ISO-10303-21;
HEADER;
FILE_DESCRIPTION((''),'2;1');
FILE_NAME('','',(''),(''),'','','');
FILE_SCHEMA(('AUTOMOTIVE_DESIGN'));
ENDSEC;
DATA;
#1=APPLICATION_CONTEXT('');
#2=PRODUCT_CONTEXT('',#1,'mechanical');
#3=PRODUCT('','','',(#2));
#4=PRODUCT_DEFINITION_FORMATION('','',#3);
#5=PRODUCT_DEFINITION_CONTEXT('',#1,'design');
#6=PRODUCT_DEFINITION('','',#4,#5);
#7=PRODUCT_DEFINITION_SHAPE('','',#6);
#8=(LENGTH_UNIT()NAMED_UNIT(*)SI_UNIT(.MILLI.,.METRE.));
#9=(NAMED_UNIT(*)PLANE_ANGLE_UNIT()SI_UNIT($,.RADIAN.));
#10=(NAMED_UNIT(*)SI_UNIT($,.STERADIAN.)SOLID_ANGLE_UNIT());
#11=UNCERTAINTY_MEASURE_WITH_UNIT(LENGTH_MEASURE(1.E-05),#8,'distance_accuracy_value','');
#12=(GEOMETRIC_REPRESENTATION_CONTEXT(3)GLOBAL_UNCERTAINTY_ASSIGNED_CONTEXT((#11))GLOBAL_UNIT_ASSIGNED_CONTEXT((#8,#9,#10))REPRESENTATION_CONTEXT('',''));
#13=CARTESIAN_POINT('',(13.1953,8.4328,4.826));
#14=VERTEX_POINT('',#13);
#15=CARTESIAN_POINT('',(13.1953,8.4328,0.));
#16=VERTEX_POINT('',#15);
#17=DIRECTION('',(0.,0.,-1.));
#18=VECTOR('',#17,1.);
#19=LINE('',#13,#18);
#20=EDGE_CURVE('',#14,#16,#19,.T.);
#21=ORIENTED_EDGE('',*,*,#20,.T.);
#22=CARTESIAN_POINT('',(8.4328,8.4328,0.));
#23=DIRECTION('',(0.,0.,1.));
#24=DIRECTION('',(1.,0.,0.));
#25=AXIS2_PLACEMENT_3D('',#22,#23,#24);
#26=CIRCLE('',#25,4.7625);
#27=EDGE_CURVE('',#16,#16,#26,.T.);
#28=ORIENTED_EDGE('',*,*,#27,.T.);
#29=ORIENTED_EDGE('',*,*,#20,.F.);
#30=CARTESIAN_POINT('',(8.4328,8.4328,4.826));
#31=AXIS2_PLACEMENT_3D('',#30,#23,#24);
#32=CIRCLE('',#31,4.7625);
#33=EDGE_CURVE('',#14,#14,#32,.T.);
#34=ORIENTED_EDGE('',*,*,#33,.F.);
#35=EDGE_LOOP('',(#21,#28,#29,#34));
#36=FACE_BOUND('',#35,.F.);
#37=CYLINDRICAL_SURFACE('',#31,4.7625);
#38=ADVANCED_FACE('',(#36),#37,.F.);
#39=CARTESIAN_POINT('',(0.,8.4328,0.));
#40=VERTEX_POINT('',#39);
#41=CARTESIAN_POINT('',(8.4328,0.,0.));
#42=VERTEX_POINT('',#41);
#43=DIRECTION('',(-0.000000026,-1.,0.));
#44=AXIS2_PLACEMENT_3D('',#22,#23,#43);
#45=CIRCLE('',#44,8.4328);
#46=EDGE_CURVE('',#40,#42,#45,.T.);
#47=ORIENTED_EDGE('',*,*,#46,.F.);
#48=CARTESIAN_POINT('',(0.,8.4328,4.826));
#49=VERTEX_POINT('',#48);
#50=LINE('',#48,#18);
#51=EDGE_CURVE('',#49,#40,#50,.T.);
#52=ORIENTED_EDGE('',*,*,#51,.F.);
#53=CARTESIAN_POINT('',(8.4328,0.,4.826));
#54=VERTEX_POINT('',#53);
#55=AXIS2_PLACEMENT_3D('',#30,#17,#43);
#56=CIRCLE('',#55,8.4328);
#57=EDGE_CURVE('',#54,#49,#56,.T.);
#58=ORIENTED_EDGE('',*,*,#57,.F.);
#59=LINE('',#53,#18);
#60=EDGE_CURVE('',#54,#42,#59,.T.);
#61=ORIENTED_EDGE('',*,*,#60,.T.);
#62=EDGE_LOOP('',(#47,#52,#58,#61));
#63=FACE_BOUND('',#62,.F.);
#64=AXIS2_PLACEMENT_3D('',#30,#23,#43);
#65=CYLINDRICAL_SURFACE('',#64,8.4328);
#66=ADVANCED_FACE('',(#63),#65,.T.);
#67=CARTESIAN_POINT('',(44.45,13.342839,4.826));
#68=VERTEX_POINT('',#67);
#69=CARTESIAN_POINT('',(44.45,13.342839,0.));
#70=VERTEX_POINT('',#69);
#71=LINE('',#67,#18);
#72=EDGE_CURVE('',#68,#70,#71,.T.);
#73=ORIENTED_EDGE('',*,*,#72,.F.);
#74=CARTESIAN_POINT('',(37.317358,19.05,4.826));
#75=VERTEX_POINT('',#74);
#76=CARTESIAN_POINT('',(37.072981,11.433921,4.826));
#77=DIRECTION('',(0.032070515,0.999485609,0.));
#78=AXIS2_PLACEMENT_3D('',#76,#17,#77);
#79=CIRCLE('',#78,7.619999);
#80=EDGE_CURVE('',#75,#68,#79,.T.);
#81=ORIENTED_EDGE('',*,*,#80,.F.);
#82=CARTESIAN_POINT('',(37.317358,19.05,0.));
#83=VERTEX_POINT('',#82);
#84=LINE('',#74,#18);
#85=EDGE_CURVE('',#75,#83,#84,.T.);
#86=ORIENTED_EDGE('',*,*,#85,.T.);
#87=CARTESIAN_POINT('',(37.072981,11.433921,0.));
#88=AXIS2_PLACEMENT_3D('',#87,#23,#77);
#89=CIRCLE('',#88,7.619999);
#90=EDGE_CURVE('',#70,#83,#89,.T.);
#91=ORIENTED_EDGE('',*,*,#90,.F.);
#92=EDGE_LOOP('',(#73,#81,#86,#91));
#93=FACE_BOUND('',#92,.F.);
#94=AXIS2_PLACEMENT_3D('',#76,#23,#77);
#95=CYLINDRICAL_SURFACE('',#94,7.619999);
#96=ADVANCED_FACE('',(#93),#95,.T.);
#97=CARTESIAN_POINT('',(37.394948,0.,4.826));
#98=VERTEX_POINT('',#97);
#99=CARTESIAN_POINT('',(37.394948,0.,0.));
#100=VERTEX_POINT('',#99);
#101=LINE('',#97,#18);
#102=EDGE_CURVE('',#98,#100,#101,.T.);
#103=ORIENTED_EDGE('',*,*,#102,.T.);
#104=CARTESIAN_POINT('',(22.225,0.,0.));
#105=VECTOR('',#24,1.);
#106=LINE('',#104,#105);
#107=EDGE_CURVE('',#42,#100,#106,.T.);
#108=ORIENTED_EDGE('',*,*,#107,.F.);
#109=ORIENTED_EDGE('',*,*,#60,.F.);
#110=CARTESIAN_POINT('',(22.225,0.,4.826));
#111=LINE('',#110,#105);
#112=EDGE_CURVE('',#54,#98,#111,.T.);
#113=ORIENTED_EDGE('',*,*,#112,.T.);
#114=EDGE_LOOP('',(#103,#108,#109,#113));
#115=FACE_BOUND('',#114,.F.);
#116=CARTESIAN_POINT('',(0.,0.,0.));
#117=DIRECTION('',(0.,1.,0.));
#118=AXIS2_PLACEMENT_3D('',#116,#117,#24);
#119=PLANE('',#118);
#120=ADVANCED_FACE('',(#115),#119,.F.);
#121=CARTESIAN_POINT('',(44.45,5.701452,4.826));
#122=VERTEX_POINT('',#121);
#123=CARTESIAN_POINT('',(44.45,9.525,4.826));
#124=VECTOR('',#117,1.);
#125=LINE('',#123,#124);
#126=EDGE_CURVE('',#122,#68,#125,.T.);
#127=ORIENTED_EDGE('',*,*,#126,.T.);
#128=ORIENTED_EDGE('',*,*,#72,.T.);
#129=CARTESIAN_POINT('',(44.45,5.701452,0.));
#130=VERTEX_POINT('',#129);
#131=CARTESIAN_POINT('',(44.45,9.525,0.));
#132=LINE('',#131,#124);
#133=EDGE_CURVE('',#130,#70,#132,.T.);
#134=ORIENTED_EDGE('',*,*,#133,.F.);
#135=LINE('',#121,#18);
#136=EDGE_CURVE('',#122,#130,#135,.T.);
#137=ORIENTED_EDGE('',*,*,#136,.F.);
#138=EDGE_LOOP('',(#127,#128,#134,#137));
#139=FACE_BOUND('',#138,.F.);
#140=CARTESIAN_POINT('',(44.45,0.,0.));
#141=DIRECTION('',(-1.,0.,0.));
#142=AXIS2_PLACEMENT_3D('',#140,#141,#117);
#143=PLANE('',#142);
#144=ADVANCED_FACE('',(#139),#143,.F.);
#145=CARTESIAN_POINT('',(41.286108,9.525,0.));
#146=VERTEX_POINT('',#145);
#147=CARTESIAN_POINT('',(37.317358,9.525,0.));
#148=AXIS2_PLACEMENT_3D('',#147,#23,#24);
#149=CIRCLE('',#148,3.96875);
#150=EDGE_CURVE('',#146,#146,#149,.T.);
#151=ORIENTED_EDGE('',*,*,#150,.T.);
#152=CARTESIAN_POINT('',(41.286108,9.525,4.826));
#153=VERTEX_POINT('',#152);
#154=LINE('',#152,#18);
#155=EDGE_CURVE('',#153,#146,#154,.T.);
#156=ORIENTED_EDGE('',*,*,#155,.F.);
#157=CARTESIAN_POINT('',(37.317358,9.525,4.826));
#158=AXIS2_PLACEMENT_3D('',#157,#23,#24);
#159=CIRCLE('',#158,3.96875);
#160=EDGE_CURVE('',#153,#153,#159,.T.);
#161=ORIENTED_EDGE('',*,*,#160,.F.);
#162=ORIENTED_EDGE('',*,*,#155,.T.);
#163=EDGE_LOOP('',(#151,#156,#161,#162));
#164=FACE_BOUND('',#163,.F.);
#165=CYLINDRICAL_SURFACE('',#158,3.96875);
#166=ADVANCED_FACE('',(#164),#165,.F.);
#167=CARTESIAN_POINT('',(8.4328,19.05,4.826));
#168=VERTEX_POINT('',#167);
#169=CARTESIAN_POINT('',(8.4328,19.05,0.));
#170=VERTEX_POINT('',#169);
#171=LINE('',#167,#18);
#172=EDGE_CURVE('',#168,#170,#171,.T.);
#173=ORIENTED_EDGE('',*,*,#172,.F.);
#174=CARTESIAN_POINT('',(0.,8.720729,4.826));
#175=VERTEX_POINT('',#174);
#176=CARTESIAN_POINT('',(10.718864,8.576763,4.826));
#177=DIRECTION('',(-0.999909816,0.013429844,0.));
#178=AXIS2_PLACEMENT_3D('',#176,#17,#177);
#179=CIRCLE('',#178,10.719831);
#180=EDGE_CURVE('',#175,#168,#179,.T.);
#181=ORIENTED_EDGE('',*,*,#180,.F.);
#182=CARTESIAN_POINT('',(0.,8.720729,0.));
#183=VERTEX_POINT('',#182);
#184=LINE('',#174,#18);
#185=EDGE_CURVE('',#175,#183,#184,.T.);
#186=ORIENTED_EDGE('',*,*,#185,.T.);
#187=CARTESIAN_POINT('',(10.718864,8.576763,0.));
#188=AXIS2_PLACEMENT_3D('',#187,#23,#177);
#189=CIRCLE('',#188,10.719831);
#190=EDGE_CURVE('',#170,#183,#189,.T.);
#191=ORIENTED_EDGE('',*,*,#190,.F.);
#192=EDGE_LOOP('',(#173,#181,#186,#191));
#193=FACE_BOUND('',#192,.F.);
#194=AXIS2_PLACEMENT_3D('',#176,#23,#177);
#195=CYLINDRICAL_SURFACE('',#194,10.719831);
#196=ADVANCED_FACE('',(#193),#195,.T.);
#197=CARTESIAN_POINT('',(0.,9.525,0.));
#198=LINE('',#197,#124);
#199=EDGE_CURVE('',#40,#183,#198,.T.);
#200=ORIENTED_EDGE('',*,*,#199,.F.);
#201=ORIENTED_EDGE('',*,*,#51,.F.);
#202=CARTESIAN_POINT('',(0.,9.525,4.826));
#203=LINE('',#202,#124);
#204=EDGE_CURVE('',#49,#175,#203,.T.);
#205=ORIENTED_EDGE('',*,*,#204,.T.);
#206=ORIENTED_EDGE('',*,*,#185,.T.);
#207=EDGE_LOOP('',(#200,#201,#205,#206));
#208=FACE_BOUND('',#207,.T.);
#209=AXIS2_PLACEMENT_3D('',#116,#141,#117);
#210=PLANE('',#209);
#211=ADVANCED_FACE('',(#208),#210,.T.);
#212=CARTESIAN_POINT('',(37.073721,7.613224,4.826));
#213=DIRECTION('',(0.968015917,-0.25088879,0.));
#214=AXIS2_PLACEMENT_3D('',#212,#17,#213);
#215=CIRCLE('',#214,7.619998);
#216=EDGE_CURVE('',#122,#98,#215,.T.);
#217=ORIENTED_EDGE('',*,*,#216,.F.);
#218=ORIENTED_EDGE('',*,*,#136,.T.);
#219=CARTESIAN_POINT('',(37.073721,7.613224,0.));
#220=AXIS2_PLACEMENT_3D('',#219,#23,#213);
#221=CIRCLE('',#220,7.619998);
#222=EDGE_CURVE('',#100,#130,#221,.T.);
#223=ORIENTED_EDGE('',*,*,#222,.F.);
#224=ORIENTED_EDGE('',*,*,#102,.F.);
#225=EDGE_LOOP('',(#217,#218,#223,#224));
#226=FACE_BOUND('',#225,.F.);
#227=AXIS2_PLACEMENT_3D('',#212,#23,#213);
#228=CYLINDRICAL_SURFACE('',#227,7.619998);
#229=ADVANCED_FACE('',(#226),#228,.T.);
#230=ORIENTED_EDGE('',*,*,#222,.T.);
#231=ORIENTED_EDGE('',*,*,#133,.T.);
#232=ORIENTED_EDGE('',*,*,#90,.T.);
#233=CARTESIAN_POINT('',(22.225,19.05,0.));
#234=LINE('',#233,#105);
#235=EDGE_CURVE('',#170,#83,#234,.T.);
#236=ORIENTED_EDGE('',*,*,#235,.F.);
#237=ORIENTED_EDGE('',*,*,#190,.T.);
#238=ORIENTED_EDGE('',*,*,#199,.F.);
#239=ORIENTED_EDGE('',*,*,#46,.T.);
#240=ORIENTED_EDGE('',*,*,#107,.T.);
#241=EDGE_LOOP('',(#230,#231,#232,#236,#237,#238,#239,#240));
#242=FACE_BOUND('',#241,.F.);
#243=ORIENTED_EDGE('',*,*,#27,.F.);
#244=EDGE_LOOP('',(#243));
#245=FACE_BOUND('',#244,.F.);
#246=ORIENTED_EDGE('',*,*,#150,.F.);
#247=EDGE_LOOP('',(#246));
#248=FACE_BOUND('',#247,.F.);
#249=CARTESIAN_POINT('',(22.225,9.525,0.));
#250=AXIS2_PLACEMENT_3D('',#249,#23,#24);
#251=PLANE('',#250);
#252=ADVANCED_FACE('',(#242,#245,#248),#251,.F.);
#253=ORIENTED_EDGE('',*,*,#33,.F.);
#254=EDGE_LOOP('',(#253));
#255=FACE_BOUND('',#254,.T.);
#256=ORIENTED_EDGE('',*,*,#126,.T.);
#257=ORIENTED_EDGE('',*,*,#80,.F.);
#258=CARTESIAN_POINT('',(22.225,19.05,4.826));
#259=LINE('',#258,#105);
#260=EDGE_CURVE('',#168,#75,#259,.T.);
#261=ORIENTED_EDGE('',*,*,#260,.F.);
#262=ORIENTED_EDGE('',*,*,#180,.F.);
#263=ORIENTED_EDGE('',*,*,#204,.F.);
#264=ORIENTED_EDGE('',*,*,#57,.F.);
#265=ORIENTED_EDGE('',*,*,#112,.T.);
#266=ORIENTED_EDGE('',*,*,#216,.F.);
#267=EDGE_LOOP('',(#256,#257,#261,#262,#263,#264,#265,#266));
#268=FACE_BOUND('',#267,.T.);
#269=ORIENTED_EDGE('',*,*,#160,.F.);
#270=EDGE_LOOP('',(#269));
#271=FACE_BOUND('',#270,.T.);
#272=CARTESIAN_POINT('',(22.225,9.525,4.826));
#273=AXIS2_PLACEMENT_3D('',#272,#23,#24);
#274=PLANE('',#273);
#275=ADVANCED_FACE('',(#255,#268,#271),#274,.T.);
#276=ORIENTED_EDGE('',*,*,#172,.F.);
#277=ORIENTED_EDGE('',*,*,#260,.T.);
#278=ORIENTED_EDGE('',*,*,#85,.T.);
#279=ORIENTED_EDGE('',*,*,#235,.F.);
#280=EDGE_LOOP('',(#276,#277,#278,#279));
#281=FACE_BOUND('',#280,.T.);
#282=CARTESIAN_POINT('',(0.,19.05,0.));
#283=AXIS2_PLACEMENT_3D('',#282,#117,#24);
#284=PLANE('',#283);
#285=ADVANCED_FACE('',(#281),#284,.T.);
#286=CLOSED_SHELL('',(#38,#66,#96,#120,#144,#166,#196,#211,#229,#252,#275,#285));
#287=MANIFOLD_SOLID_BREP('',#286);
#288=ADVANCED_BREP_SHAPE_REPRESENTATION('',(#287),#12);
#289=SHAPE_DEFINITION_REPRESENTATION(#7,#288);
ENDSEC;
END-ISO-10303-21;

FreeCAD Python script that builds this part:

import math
import FreeCAD as App
import Part
import Sketcher
from FreeCAD import Vector
Q = App.Units.Quantity


def add_polygon(sketch, points):
    """Adds a closed chain of lines whose ends are joined by coincident constraints."""
    first, n = sketch.GeometryCount, len(points)
    for a, b in zip(points, points[1:] + points[:1]):
        sketch.addGeometry(Part.LineSegment(App.Vector(*a, 0), App.Vector(*b, 0)), False)
    for i in range(n):
        sketch.addConstraint(Sketcher.Constraint("Coincident", first + i, 2, first + (i + 1) % n, 1))

doc = App.newDocument("Part")
params = doc.addObject("Spreadsheet::Sheet", "Params")
for row, (alias, value) in enumerate([
    ("sketch1_width", "1.75 in"),
    ("sketch1_height", "0.75 in"),
    ("pad1_length", "0.19 in"),
    ("sketch2_radius", "0.2999999 in"),
    ("sketch2_diameter", "0.375 in"),
    ("sketch2_diameter2", "0.3125 in"),
    ("sketch2_radius2", "0.332 in"),
], start=1):
    params.set(f"A{row}", alias)
    params.set(f"B{row}", "=" + value)
    params.setAlias(f"B{row}", alias)

body = doc.addObject("PartDesign::Body", "Body")

# Sketch on XY plane
sketch1 = body.newObject("Sketcher::SketchObject", "Sketch")
sketch1.AttachmentSupport = (doc.getObject("XY_Plane"), [""])
sketch1.MapMode = "FlatFace"
add_polygon(sketch1, [(0, 19.05), (0, 0), (44.45, 0), (44.45, 19.05)])  # lines 0-3
sketch1.addConstraint([
    Sketcher.Constraint("Vertical", 0),
    Sketcher.Constraint("Horizontal", 1),
    Sketcher.Constraint("Vertical", 2),
    Sketcher.Constraint("Horizontal", 3),
    Sketcher.Constraint("Coincident", 0, 2, -1, 1),
    Sketcher.Constraint("DistanceX", 1, 1, 1, 2, Q("1.75 in")),
    Sketcher.Constraint("DistanceY", 0, 2, 0, 1, Q("0.75 in")),
])
sketch1.setExpression("Constraints[9]", "Params.sketch1_width")
sketch1.setExpression("Constraints[10]", "Params.sketch1_height")
pad1 = body.newObject("PartDesign::Pad", "Pad")
pad1.Profile = sketch1
pad1.setExpression("Length", "Params.pad1_length")

# Sketch on XY plane
sketch2 = body.newObject("Sketcher::SketchObject", "Sketch001")
sketch2.AttachmentSupport = (doc.getObject("XY_Plane"), [""])
sketch2.MapMode = "FlatFace"
sketch2.AttachmentOffset = App.Placement(Vector(0, 0, 0.19 * 25.4), App.Rotation())
sketch2.addGeometry([
    Part.Circle(Vector(8.4328, 8.4328, 0), Vector(0, 0, 1), 4.7625),  # 0
    Part.Circle(Vector(37.317358, 9.525, 0), Vector(0, 0, 1), 3.96875),  # 1
    Part.ArcOfCircle(Part.Circle(Vector(10.718864, 8.576763, 0), Vector(0, 0, 1), 10.719831), math.radians(102.313208), math.radians(179.230504)),  # 2
    Part.LineSegment(Vector(8.4328, 19.05, 0), Vector(0, 19.05, 0)),  # 3
    Part.LineSegment(Vector(0, 19.05, 0), Vector(0, 8.720729, 0)),  # 4
    Part.LineSegment(Vector(0, 0, 0), Vector(8.4328, 0, 0)),  # 5
    Part.ArcOfCircle(Part.Circle(Vector(8.4328, 8.4328, 0), Vector(0, 0, 1), 8.4328), math.radians(-179.999999), math.radians(-90.000001)),  # 6
    Part.LineSegment(Vector(0, 8.4328, 0), Vector(0, 0, 0)),  # 7
    Part.LineSegment(Vector(44.45, 0, 0), Vector(44.45, 5.701452, 0)),  # 8
    Part.ArcOfCircle(Part.Circle(Vector(37.073721, 7.613224, 0), Vector(0, 0, 1), 7.619998), math.radians(-87.583934), math.radians(-14.530112)),  # 9
    Part.LineSegment(Vector(37.394948, 0, 0), Vector(44.45, 0, 0)),  # 10
    Part.ArcOfCircle(Part.Circle(Vector(37.072981, 11.433921, 0), Vector(0, 0, 1), 7.619999), math.radians(14.507944), math.radians(88.16218)),  # 11
    Part.LineSegment(Vector(44.45, 13.342839, 0), Vector(44.45, 19.05, 0)),  # 12
    Part.LineSegment(Vector(44.45, 19.05, 0), Vector(37.317358, 19.05, 0)),  # 13
], False)
sketch2.addConstraint([
    Sketcher.Constraint("Coincident", 2, 1, 3, 1),
    Sketcher.Constraint("Coincident", 3, 2, 4, 1),
    Sketcher.Constraint("Coincident", 4, 2, 2, 2),
    Sketcher.Constraint("Tangent", 5, 2, 6, 2),
    Sketcher.Constraint("Tangent", 6, 1, 7, 1),
    Sketcher.Constraint("Coincident", 7, 2, 5, 1),
    Sketcher.Constraint("Coincident", 8, 2, 9, 2),
    Sketcher.Constraint("Coincident", 9, 1, 10, 1),
    Sketcher.Constraint("Coincident", 10, 2, 8, 1),
    Sketcher.Constraint("Coincident", 11, 1, 12, 1),
    Sketcher.Constraint("Coincident", 12, 2, 13, 1),
    Sketcher.Constraint("Coincident", 13, 2, 11, 2),
    Sketcher.Constraint("Horizontal", 3),
    Sketcher.Constraint("Vertical", 4),
    Sketcher.Constraint("Horizontal", 5),
    Sketcher.Constraint("Vertical", 7),
    Sketcher.Constraint("Vertical", 8),
    Sketcher.Constraint("Horizontal", 10),
    Sketcher.Constraint("Vertical", 12),
    Sketcher.Constraint("Horizontal", 13),
    Sketcher.Constraint("Coincident", 7, 2, -1, 1),
    Sketcher.Constraint("Coincident", 6, 3, 0, 3),
    Sketcher.Constraint("Equal", 9, 11),
    Sketcher.Constraint("PointOnObject", 3, 2, -2),
    Sketcher.Constraint("PointOnObject", 9, 1, -1),
    Sketcher.Constraint("Horizontal", 3, 2, 12, 2),
    Sketcher.Constraint("Vertical", 6, 3, 2, 1),
    Sketcher.Constraint("Vertical", 10, 2, 11, 1),
    Sketcher.Constraint("Vertical", 1, 3, 13, 2),
    Sketcher.Constraint("Radius", 9, Q("0.2999999 in")),
    Sketcher.Constraint("Diameter", 0, Q("0.375 in")),
    Sketcher.Constraint("Diameter", 1, Q("0.3125 in")),
    Sketcher.Constraint("Radius", 6, Q("0.332 in")),
    Sketcher.Constraint("DistanceY", -1, 1, 2, 1, Q("0.75 in")),
    Sketcher.Constraint("DistanceX", -1, 1, 8, 2, Q("1.75 in")),
    Sketcher.Constraint("DistanceY", -1, 1, 1, 3, Q("0.375 in")),
    Sketcher.Constraint("Radius", 2, Q("10.719831 mm")),
    Sketcher.Constraint("DistanceY", 4, 2, 4, 1, Q("10.329271 mm")),
    Sketcher.Constraint("DistanceY", 8, 1, 8, 2, Q("5.701452 mm")),
    Sketcher.Constraint("DistanceY", 12, 1, 12, 2, Q("5.707161 mm")),
    Sketcher.Constraint("DistanceX", 10, 1, 10, 2, Q("7.055052 mm")),
    Sketcher.Constraint("DistanceX", 13, 2, 13, 1, Q("7.132642 mm")),
])
sketch2.setExpression("Constraints[29]", "Params.sketch2_radius")
sketch2.setExpression("Constraints[30]", "Params.sketch2_diameter")
sketch2.setExpression("Constraints[31]", "Params.sketch2_diameter2")
sketch2.setExpression("Constraints[32]", "Params.sketch2_radius2")
pocket1 = body.newObject("PartDesign::Pocket", "Pocket")
pocket1.Profile = sketch2
pocket1.Type = "ThroughAll"

doc.recompute()
